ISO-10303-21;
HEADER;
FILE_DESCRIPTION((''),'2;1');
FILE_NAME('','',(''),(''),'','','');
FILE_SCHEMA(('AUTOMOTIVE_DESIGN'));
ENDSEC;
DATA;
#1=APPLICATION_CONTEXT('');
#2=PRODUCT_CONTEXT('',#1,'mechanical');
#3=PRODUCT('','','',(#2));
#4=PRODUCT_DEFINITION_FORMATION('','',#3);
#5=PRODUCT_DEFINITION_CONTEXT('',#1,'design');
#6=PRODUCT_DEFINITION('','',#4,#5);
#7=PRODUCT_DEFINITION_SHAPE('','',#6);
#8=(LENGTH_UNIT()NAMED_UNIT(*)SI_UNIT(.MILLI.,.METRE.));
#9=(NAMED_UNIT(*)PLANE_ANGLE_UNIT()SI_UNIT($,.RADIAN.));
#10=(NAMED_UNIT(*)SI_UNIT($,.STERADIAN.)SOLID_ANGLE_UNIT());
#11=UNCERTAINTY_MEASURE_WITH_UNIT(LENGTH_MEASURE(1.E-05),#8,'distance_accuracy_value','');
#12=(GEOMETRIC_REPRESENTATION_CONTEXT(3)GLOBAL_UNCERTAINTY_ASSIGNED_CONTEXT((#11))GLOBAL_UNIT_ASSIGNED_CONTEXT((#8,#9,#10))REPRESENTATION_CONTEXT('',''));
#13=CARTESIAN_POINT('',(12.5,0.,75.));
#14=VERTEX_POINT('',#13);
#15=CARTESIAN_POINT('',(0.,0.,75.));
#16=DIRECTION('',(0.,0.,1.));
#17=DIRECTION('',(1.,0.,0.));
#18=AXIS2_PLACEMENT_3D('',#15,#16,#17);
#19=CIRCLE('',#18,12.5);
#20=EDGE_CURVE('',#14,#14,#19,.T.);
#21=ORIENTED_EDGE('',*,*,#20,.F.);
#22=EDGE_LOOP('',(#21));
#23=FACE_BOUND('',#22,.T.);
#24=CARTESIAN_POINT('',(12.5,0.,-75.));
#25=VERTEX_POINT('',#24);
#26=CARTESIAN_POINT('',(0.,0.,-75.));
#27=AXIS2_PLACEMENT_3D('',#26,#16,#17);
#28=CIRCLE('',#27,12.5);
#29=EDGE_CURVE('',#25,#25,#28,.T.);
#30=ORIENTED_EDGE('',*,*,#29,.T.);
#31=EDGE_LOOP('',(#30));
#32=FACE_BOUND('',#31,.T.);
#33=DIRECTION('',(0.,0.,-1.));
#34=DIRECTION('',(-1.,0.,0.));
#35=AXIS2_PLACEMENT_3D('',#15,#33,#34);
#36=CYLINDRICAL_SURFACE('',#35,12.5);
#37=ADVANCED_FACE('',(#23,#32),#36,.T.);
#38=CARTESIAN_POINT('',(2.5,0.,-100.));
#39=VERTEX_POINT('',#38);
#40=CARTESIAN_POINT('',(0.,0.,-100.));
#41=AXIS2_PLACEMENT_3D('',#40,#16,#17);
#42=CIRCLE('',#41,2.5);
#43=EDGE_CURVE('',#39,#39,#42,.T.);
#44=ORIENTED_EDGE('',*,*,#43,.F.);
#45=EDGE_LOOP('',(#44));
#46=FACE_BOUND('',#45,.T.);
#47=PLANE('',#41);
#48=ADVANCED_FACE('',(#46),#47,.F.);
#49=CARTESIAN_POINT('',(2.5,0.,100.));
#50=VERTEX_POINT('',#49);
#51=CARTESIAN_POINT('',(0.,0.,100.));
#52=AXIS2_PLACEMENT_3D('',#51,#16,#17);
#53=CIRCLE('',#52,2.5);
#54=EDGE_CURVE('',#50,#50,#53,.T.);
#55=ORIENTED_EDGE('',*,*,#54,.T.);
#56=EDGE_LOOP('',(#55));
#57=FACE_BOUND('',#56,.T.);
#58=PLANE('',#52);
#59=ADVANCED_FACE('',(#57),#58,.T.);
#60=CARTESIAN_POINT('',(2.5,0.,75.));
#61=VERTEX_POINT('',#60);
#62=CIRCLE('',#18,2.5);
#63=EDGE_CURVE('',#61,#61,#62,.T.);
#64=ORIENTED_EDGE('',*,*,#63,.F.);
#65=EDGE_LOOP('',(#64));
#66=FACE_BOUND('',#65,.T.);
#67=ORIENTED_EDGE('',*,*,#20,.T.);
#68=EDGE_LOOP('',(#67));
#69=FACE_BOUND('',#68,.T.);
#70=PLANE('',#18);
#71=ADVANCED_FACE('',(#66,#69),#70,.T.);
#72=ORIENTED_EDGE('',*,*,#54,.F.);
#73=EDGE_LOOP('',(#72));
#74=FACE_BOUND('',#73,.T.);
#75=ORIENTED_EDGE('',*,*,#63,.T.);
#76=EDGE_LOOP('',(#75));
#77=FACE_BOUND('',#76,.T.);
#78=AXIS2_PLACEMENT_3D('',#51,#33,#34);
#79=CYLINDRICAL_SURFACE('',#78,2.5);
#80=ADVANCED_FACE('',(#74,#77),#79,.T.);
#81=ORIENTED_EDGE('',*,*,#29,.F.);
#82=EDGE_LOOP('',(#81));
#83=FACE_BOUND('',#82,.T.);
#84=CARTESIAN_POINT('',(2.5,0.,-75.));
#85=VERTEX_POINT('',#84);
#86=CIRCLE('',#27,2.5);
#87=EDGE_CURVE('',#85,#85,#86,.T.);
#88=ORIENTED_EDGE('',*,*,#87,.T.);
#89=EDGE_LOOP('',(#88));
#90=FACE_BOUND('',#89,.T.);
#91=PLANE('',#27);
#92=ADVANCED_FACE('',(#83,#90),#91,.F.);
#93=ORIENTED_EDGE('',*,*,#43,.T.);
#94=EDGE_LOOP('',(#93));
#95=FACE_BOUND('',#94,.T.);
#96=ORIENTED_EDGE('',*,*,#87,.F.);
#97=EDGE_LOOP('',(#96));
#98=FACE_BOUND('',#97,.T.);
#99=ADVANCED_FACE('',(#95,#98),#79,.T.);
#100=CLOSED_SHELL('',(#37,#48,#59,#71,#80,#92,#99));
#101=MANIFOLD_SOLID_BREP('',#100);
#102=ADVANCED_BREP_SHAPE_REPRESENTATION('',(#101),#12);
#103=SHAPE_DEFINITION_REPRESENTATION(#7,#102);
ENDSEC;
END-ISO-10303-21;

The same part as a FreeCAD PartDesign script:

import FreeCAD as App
import Part
import Sketcher
from FreeCAD import Vector

doc = App.newDocument("Part")
body = doc.addObject("PartDesign::Body", "Body")

# Sketch on XY plane
sketch1 = body.newObject("Sketcher::SketchObject", "Sketch")
sketch1.AttachmentSupport = (doc.getObject("XY_Plane"), [""])
sketch1.MapMode = "FlatFace"
sketch1.addGeometry(Part.Circle(Vector(0, 0, 0), Vector(0, 0, 1), 2.5), False)
sketch1.addConstraint([
    Sketcher.Constraint("Coincident", 0, 3, -1, 1),
    Sketcher.Constraint("Diameter", 0, 5.0),
])
pad1 = body.newObject("PartDesign::Pad", "Pad")
pad1.Profile = sketch1
pad1.Length = 200
pad1.Midplane = True

# Sketch on XY plane
sketch2 = body.newObject("Sketcher::SketchObject", "Sketch001")
sketch2.AttachmentSupport = (doc.getObject("XY_Plane"), [""])
sketch2.MapMode = "FlatFace"
sketch2.addGeometry(Part.Circle(Vector(0, 0, 0), Vector(0, 0, 1), 12), False)
sketch2.addConstraint([
    Sketcher.Constraint("Coincident", 0, 3, -1, 1),
    Sketcher.Constraint("Diameter", 0, 25.0),
])
pad2 = body.newObject("PartDesign::Pad", "Pad001")
pad2.Profile = sketch2
pad2.Length = 150
pad2.Midplane = True

doc.recompute()
